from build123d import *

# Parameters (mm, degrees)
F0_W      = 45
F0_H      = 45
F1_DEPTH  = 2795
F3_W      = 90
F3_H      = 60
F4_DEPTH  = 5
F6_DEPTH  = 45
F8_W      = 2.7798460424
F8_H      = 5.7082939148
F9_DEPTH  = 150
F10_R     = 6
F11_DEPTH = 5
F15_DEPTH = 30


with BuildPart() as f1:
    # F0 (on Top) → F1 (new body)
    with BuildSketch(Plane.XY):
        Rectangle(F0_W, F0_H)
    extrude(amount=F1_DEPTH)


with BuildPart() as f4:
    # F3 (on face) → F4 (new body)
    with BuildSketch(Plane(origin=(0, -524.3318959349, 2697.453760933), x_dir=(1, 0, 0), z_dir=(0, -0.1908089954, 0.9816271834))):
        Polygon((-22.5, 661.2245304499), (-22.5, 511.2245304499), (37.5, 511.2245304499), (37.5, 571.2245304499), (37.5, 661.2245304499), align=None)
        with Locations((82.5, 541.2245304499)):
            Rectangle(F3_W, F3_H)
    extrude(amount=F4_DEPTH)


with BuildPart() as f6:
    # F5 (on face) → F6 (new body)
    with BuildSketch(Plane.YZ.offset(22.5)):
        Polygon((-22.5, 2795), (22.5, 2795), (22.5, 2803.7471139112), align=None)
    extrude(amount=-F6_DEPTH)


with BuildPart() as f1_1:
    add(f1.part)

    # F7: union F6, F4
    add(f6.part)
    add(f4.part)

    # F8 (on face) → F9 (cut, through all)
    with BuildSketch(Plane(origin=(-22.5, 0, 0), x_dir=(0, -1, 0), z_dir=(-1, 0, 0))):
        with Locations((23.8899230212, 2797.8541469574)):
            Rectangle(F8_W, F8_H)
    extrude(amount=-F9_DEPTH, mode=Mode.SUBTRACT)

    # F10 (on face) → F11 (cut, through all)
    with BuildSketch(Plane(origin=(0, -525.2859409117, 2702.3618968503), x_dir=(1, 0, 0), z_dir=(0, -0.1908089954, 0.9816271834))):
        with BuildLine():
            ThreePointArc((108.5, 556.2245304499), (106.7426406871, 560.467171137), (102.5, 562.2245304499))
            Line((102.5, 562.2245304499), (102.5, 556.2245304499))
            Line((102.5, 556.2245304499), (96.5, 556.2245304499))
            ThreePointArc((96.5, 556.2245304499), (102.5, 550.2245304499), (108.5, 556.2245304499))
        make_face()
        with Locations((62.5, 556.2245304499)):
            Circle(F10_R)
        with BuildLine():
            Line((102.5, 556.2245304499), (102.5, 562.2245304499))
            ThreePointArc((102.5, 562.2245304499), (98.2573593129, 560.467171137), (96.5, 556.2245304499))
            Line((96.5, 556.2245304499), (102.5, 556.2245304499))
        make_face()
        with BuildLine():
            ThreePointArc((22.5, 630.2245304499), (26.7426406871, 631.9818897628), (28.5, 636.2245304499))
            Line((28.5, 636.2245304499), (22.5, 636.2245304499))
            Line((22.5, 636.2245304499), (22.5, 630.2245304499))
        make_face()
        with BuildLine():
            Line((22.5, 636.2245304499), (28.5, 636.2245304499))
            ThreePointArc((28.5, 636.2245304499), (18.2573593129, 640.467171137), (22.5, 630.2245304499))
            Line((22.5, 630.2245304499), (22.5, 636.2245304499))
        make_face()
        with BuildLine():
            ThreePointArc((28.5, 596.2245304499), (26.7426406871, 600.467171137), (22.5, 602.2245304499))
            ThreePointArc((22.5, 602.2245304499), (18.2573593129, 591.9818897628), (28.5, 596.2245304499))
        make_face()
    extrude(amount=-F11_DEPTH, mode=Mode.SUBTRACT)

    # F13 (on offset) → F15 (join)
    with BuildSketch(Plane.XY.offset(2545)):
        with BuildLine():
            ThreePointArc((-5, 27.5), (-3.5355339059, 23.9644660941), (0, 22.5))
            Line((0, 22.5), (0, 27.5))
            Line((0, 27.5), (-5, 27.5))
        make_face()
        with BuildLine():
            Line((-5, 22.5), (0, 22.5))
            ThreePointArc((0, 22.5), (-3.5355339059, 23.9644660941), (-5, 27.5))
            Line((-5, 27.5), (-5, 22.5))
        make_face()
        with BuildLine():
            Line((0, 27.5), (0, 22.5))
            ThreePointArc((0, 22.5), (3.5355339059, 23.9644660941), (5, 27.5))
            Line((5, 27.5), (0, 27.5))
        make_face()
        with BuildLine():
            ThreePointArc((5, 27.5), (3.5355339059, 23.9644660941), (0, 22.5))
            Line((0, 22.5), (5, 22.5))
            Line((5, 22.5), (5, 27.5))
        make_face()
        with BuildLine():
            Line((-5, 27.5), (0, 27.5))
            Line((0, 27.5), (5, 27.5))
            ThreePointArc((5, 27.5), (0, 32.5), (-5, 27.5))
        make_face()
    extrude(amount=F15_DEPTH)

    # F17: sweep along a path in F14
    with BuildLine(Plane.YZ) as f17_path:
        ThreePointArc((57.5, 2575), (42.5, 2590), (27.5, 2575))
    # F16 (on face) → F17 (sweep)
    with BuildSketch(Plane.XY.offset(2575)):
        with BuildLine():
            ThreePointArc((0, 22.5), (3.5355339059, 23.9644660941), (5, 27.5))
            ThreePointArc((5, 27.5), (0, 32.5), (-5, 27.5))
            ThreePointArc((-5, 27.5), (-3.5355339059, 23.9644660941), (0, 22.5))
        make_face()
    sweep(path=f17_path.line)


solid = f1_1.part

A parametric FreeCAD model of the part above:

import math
import FreeCAD as App
import Part
import Sketcher
from FreeCAD import Vector
Q = App.Units.Quantity


def add_polygon(sketch, points):
    """Adds a closed chain of lines whose ends are joined by coincident constraints."""
    first, n = sketch.GeometryCount, len(points)
    for a, b in zip(points, points[1:] + points[:1]):
        sketch.addGeometry(Part.LineSegment(App.Vector(*a, 0), App.Vector(*b, 0)), False)
    for i in range(n):
        sketch.addConstraint(Sketcher.Constraint("Coincident", first + i, 2, first + (i + 1) % n, 1))

doc = App.newDocument("Part")
params = doc.addObject("Spreadsheet::Sheet", "Params")
for row, (alias, value) in enumerate([
    ("sketch1_width", "45 mm"),
    ("pad1_length", "2795 mm"),
    ("sketch2_width", "150 mm"),
    ("sketch2_width2", "90 mm"),
    ("pad2_length", "5 mm"),
    ("sketch3_width", "45 mm"),
    ("pad3_length", "45 mm"),
    ("sketch5_diameter", "12 mm"),
    ("sketch6_radius", "5 mm"),
    ("sketch6_height", "5 mm"),
    ("pad4_length", "30 mm"),
    ("sketch7_radius", "5 mm"),
    ("sketch8_radius", "15 mm"),
], start=1):
    params.set(f"A{row}", alias)
    params.set(f"B{row}", "=" + value)
    params.setAlias(f"B{row}", alias)

body = doc.addObject("PartDesign::Body", "Body")

# Sketch on XY plane
sketch1 = body.newObject("Sketcher::SketchObject", "Sketch")
sketch1.AttachmentSupport = (doc.getObject("XY_Plane"), [""])
sketch1.MapMode = "FlatFace"
add_polygon(sketch1, [(-22, 22), (-22, -22), (22, -22), (22, 22)])  # lines 0-3
sketch1.addConstraint([
    Sketcher.Constraint("Vertical", 0),
    Sketcher.Constraint("Horizontal", 1),
    Sketcher.Constraint("Vertical", 2),
    Sketcher.Constraint("Horizontal", 3),
    Sketcher.Constraint("Symmetric", 0, 2, 2, 2, -1, 1),
    Sketcher.Constraint("Equal", 3, 0),
    Sketcher.Constraint("DistanceX", 1, 1, 1, 2, Q("45 mm")),
])
sketch1.setExpression("Constraints[10]", "Params.sketch1_width")
pad1 = body.newObject("PartDesign::Pad", "Pad")
pad1.Profile = sketch1
pad1.setExpression("Length", "Params.pad1_length")
body2 = doc.addObject("PartDesign::Body", "Body001")

# Sketch on an angled plane
sketch2 = body2.newObject("Sketcher::SketchObject", "Sketch001")
sketch2.Placement = App.Placement(Vector(0, -524.331896, 2697.453761), App.Rotation(Vector(1, 0, 0), Vector(0, 0.981627183, 0.190808995), Vector(0, -0.190808995, 0.981627183), "ZXY"))
add_polygon(sketch2, [(-22, 661), (-22, 511), (128, 511), (128, 571), (38, 571), (38, 661)])  # lines 0-5
sketch2.addConstraint([
    Sketcher.Constraint("Vertical", 0),
    Sketcher.Constraint("Horizontal", 1),
    Sketcher.Constraint("Vertical", 2),
    Sketcher.Constraint("Horizontal", 3),
    Sketcher.Constraint("Vertical", 4),
    Sketcher.Constraint("Horizontal", 5),
    Sketcher.Constraint("Equal", 1, 0),
    Sketcher.Constraint("Equal", 5, 2),
    Sketcher.Constraint("DistanceX", 1, 1, 1, 2, Q("150 mm")),
    Sketcher.Constraint("DistanceX", 3, 2, 3, 1, Q("90 mm")),
    Sketcher.Constraint("DistanceX", 0, 2, -1, 1, Q("22.5 mm")),
    Sketcher.Constraint("DistanceY", -1, 1, 0, 2, Q("511.22453 mm")),
])
sketch2.setExpression("Constraints[14]", "Params.sketch2_width")
sketch2.setExpression("Constraints[15]", "Params.sketch2_width2")
pad2 = body2.newObject("PartDesign::Pad", "Pad001")
pad2.Profile = sketch2
pad2.setExpression("Length", "Params.pad2_length")
body3 = doc.addObject("PartDesign::Body", "Body002")

# Sketch on YZ plane
sketch3 = body3.newObject("Sketcher::SketchObject", "Sketch002")
sketch3.AttachmentSupport = (doc.getObject("YZ_Plane002"), [""])
sketch3.MapMode = "FlatFace"
sketch3.AttachmentOffset = App.Placement(Vector(0, 0, 22.5), App.Rotation())
add_polygon(sketch3, [(-22, 2795), (22, 2795), (22, 2804)])  # lines 0-2
sketch3.addConstraint([
    Sketcher.Constraint("Horizontal", 0),
    Sketcher.Constraint("Vertical", 1),
    Sketcher.Constraint("DistanceX", 0, 1, 0, 2, Q("45 mm")),
    Sketcher.Constraint("Angle", 2, Q("-169 deg")),
    Sketcher.Constraint("DistanceY", -1, 1, 0, 2, Q("2795 mm")),
    Sketcher.Constraint("DistanceX", -1, 1, 0, 2, Q("22.5 mm")),
])
sketch3.setExpression("Constraints[5]", "Params.sketch3_width")
pad3 = body3.newObject("PartDesign::Pad", "Pad002")
pad3.Profile = sketch3
pad3.setExpression("Length", "Params.pad3_length")
pad3.Reversed = True
doc.recompute()

boolean = body.newObject("PartDesign::Boolean", "Boolean")
boolean.Type = "Fuse"
boolean.addObjects([body3])
doc.recompute()

boolean2 = body.newObject("PartDesign::Boolean", "Boolean001")
boolean2.Type = "Fuse"
boolean2.addObjects([body2])

# Sketch on YZ plane
sketch4 = body.newObject("Sketcher::SketchObject", "Sketch003")
sketch4.AttachmentSupport = (doc.getObject("YZ_Plane"), [""])
sketch4.MapMode = "FlatFace"
sketch4.AttachmentOffset = App.Placement(Vector(0, 0, -22.5), App.Rotation())
add_polygon(sketch4, [(-22.5, 2800.7), (-22.5, 2795), (-25.3, 2795), (-25.3, 2800.7)])  # lines 0-3
sketch4.addConstraint([
    Sketcher.Constraint("Vertical", 0),
    Sketcher.Constraint("Horizontal", 1),
    Sketcher.Constraint("Vertical", 2),
    Sketcher.Constraint("Horizontal", 3),
    Sketcher.Constraint("DistanceY", -1, 1, 0, 2, Q("2795 mm")),
    Sketcher.Constraint("DistanceX", 0, 2, -1, 1, Q("22.5 mm")),
    Sketcher.Constraint("DistanceX", 1, 2, 1, 1, Q("2.779846 mm")),
    Sketcher.Constraint("DistanceY", 0, 2, 0, 1, Q("5.708294 mm")),
])
pocket1 = body.newObject("PartDesign::Pocket", "Pocket")
pocket1.Profile = sketch4
pocket1.Type = "ThroughAll"
pocket1.Reversed = True

# Sketch on an angled plane
sketch5 = body.newObject("Sketcher::SketchObject", "Sketch004")
sketch5.Placement = App.Placement(Vector(0, -525.285941, 2702.361897), App.Rotation(Vector(1, 0, 0), Vector(0, 0.981627183, 0.190808995), Vector(0, -0.190808995, 0.981627183), "ZXY"))
sketch5.addGeometry([
    Part.ArcOfCircle(Part.Circle(Vector(102, 556, 0), Vector(0, 0, 1), 6), math.radians(0), math.radians(90)),  # 0
    Part.ArcOfCircle(Part.Circle(Vector(102, 556, 0), Vector(0, 0, 1), 6), math.radians(90), math.radians(180)),  # 1
    Part.ArcOfCircle(Part.Circle(Vector(102, 556, 0), Vector(0, 0, 1), 6), math.radians(180), math.radians(360)),  # 2
    Part.Circle(Vector(62, 556, 0), Vector(0, 0, 1), 6),  # 3
    Part.ArcOfCircle(Part.Circle(Vector(22, 636, 0), Vector(0, 0, 1), 6), math.radians(-90), math.radians(0)),  # 4
    Part.ArcOfCircle(Part.Circle(Vector(22, 636, 0), Vector(0, 0, 1), 6), math.radians(0), math.radians(270)),  # 5
    Part.ArcOfCircle(Part.Circle(Vector(22, 596, 0), Vector(0, 0, 1), 6), math.radians(0), math.radians(90)),  # 6
    Part.ArcOfCircle(Part.Circle(Vector(22, 596, 0), Vector(0, 0, 1), 6), math.radians(90), math.radians(360)),  # 7
], False)
sketch5.addConstraint([
    Sketcher.Constraint("Tangent", 0, 2, 1, 1),
    Sketcher.Constraint("Tangent", 1, 2, 2, 1),
    Sketcher.Constraint("Tangent", 2, 2, 0, 1),
    Sketcher.Constraint("Tangent", 4, 1, 5, 2),
    Sketcher.Constraint("Coincident", 5, 1, 4, 2),
    Sketcher.Constraint("Tangent", 6, 1, 7, 2),
    Sketcher.Constraint("Coincident", 7, 1, 6, 2),
    Sketcher.Constraint("Equal", 2, 3),
    Sketcher.Constraint("Equal", 3, 4),
    Sketcher.Constraint("Equal", 5, 6),
    Sketcher.Constraint("Horizontal", 2, 3, 3, 3),
    Sketcher.Constraint("Horizontal", 3, 3, 1, 2),
    Sketcher.Constraint("Horizontal", 1, 2, 2, 2),
    Sketcher.Constraint("Horizontal", 4, 3, 5, 1),
    Sketcher.Constraint("Horizontal", 7, 3, 6, 1),
    Sketcher.Constraint("Vertical", 5, 3, 6, 3),
    Sketcher.Constraint("Vertical", 2, 3, 0, 2),
    Sketcher.Constraint("Vertical", 7, 3, 4, 1),
    Sketcher.Constraint("Vertical", 4, 1, 7, 1),
    Sketcher.Constraint("Diameter", 3, Q("12 mm")),
    Sketcher.Constraint("DistanceX", 3, 3, 0, 3, Q("40 mm")),
    Sketcher.Constraint("DistanceX", 4, 3, 3, 3, Q("40 mm")),
    Sketcher.Constraint("DistanceY", 3, 3, 4, 3, Q("80 mm")),
    Sketcher.Constraint("DistanceY", 6, 3, 4, 3, Q("40 mm")),
    Sketcher.Constraint("DistanceX", -1, 1, 0, 3, Q("102.5 mm")),
    Sketcher.Constraint("DistanceY", -1, 1, 0, 3, Q("556.22453 mm")),
])
sketch5.setExpression("Constraints[19]", "Params.sketch5_diameter")
pocket2 = body.newObject("PartDesign::Pocket", "Pocket001")
pocket2.Profile = sketch5
pocket2.Type = "ThroughAll"

# Sketch on XY plane
sketch6 = body.newObject("Sketcher::SketchObject", "Sketch005")
sketch6.AttachmentSupport = (doc.getObject("XY_Plane"), [""])
sketch6.MapMode = "FlatFace"
sketch6.AttachmentOffset = App.Placement(Vector(0, 0, 2545), App.Rotation())
sketch6.addGeometry([
    Part.LineSegment(Vector(-5, 28, 0), Vector(-5, 22, 0)),
    Part.LineSegment(Vector(-5, 22, 0), Vector(5, 22, 0)),
    Part.LineSegment(Vector(5, 22, 0), Vector(5, 28, 0)),
    Part.ArcOfCircle(Part.Circle(Vector(0, 28, 0), Vector(0, 0, 1), 5), math.radians(0), math.radians(180)),
], False)
sketch6.addConstraint([
    Sketcher.Constraint("Coincident", 0, 2, 1, 1),
    Sketcher.Constraint("Coincident", 1, 2, 2, 1),
    Sketcher.Constraint("Tangent", 2, 2, 3, 1),
    Sketcher.Constraint("Tangent", 3, 2, 0, 1),
    Sketcher.Constraint("Vertical", 0),
    Sketcher.Constraint("Horizontal", 1),
    Sketcher.Constraint("Vertical", 2),
    Sketcher.Constraint("PointOnObject", 3, 3, -2),
    Sketcher.Constraint("Radius", 3, Q("5 mm")),
    Sketcher.Constraint("DistanceY", 0, 2, 0, 1, Q("5 mm")),
    Sketcher.Constraint("DistanceY", -1, 1, 3, 3, Q("27.5 mm")),
])
sketch6.setExpression("Constraints[8]", "Params.sketch6_radius")
sketch6.setExpression("Constraints[9]", "Params.sketch6_height")
pad4 = body.newObject("PartDesign::Pad", "Pad003")
pad4.Profile = sketch6
pad4.setExpression("Length", "Params.pad4_length")

# Sketch on XY plane
sketch7 = body.newObject("Sketcher::SketchObject", "Sketch006")
sketch7.AttachmentSupport = (doc.getObject("XY_Plane"), [""])
sketch7.MapMode = "FlatFace"
sketch7.AttachmentOffset = App.Placement(Vector(0, 0, 2575), App.Rotation())
sketch7.addGeometry([
    Part.ArcOfCircle(Part.Circle(Vector(0, 28, 0), Vector(0, 0, 1), 5), math.radians(-90), math.radians(0)),
    Part.ArcOfCircle(Part.Circle(Vector(0, 28, 0), Vector(0, 0, 1), 5), math.radians(0), math.radians(180)),
    Part.ArcOfCircle(Part.Circle(Vector(0, 28, 0), Vector(0, 0, 1), 5), math.radians(180), math.radians(270)),
], False)
sketch7.addConstraint([
    Sketcher.Constraint("Tangent", 0, 2, 1, 1),
    Sketcher.Constraint("Tangent", 1, 2, 2, 1),
    Sketcher.Constraint("Tangent", 2, 2, 0, 1),
    Sketcher.Constraint("Symmetric", 0, 2, 1, 2, -2),
    Sketcher.Constraint("PointOnObject", 2, 2, -2),
    Sketcher.Constraint("Horizontal", 2, 3, 0, 2),
    Sketcher.Constraint("Radius", 0, Q("5 mm")),
    Sketcher.Constraint("DistanceY", -1, 1, 0, 3, Q("27.5 mm")),
])
sketch7.setExpression("Constraints[6]", "Params.sketch7_radius")

# Sketch on YZ plane
sketch8 = body.newObject("Sketcher::SketchObject", "Sketch007")
sketch8.AttachmentSupport = (doc.getObject("YZ_Plane"), [""])
sketch8.MapMode = "FlatFace"
sketch8.addGeometry(Part.ArcOfCircle(Part.Circle(Vector(42, 2575, 0), Vector(0, 0, 1), 15), math.radians(0), math.radians(180)), False)
sketch8.addConstraint([
    Sketcher.Constraint("Radius", 0, Q("15 mm")),
    Sketcher.Constraint("DistanceY", -1, 1, 0, 3, Q("2575 mm")),
    Sketcher.Constraint("DistanceY", -1, 1, 0, 1, Q("2575 mm")),
    Sketcher.Constraint("DistanceY", -1, 1, 0, 2, Q("2575 mm")),
    Sketcher.Constraint("DistanceX", -1, 1, 0, 3, Q("42.5 mm")),
])
sketch8.setExpression("Constraints[0]", "Params.sketch8_radius")
doc.recompute()

additivepipe = body.newObject("PartDesign::AdditivePipe", "AdditivePipe")
additivepipe.Profile = sketch7
additivepipe.Spine = (sketch8, ["Edge1"])

doc.recompute()
